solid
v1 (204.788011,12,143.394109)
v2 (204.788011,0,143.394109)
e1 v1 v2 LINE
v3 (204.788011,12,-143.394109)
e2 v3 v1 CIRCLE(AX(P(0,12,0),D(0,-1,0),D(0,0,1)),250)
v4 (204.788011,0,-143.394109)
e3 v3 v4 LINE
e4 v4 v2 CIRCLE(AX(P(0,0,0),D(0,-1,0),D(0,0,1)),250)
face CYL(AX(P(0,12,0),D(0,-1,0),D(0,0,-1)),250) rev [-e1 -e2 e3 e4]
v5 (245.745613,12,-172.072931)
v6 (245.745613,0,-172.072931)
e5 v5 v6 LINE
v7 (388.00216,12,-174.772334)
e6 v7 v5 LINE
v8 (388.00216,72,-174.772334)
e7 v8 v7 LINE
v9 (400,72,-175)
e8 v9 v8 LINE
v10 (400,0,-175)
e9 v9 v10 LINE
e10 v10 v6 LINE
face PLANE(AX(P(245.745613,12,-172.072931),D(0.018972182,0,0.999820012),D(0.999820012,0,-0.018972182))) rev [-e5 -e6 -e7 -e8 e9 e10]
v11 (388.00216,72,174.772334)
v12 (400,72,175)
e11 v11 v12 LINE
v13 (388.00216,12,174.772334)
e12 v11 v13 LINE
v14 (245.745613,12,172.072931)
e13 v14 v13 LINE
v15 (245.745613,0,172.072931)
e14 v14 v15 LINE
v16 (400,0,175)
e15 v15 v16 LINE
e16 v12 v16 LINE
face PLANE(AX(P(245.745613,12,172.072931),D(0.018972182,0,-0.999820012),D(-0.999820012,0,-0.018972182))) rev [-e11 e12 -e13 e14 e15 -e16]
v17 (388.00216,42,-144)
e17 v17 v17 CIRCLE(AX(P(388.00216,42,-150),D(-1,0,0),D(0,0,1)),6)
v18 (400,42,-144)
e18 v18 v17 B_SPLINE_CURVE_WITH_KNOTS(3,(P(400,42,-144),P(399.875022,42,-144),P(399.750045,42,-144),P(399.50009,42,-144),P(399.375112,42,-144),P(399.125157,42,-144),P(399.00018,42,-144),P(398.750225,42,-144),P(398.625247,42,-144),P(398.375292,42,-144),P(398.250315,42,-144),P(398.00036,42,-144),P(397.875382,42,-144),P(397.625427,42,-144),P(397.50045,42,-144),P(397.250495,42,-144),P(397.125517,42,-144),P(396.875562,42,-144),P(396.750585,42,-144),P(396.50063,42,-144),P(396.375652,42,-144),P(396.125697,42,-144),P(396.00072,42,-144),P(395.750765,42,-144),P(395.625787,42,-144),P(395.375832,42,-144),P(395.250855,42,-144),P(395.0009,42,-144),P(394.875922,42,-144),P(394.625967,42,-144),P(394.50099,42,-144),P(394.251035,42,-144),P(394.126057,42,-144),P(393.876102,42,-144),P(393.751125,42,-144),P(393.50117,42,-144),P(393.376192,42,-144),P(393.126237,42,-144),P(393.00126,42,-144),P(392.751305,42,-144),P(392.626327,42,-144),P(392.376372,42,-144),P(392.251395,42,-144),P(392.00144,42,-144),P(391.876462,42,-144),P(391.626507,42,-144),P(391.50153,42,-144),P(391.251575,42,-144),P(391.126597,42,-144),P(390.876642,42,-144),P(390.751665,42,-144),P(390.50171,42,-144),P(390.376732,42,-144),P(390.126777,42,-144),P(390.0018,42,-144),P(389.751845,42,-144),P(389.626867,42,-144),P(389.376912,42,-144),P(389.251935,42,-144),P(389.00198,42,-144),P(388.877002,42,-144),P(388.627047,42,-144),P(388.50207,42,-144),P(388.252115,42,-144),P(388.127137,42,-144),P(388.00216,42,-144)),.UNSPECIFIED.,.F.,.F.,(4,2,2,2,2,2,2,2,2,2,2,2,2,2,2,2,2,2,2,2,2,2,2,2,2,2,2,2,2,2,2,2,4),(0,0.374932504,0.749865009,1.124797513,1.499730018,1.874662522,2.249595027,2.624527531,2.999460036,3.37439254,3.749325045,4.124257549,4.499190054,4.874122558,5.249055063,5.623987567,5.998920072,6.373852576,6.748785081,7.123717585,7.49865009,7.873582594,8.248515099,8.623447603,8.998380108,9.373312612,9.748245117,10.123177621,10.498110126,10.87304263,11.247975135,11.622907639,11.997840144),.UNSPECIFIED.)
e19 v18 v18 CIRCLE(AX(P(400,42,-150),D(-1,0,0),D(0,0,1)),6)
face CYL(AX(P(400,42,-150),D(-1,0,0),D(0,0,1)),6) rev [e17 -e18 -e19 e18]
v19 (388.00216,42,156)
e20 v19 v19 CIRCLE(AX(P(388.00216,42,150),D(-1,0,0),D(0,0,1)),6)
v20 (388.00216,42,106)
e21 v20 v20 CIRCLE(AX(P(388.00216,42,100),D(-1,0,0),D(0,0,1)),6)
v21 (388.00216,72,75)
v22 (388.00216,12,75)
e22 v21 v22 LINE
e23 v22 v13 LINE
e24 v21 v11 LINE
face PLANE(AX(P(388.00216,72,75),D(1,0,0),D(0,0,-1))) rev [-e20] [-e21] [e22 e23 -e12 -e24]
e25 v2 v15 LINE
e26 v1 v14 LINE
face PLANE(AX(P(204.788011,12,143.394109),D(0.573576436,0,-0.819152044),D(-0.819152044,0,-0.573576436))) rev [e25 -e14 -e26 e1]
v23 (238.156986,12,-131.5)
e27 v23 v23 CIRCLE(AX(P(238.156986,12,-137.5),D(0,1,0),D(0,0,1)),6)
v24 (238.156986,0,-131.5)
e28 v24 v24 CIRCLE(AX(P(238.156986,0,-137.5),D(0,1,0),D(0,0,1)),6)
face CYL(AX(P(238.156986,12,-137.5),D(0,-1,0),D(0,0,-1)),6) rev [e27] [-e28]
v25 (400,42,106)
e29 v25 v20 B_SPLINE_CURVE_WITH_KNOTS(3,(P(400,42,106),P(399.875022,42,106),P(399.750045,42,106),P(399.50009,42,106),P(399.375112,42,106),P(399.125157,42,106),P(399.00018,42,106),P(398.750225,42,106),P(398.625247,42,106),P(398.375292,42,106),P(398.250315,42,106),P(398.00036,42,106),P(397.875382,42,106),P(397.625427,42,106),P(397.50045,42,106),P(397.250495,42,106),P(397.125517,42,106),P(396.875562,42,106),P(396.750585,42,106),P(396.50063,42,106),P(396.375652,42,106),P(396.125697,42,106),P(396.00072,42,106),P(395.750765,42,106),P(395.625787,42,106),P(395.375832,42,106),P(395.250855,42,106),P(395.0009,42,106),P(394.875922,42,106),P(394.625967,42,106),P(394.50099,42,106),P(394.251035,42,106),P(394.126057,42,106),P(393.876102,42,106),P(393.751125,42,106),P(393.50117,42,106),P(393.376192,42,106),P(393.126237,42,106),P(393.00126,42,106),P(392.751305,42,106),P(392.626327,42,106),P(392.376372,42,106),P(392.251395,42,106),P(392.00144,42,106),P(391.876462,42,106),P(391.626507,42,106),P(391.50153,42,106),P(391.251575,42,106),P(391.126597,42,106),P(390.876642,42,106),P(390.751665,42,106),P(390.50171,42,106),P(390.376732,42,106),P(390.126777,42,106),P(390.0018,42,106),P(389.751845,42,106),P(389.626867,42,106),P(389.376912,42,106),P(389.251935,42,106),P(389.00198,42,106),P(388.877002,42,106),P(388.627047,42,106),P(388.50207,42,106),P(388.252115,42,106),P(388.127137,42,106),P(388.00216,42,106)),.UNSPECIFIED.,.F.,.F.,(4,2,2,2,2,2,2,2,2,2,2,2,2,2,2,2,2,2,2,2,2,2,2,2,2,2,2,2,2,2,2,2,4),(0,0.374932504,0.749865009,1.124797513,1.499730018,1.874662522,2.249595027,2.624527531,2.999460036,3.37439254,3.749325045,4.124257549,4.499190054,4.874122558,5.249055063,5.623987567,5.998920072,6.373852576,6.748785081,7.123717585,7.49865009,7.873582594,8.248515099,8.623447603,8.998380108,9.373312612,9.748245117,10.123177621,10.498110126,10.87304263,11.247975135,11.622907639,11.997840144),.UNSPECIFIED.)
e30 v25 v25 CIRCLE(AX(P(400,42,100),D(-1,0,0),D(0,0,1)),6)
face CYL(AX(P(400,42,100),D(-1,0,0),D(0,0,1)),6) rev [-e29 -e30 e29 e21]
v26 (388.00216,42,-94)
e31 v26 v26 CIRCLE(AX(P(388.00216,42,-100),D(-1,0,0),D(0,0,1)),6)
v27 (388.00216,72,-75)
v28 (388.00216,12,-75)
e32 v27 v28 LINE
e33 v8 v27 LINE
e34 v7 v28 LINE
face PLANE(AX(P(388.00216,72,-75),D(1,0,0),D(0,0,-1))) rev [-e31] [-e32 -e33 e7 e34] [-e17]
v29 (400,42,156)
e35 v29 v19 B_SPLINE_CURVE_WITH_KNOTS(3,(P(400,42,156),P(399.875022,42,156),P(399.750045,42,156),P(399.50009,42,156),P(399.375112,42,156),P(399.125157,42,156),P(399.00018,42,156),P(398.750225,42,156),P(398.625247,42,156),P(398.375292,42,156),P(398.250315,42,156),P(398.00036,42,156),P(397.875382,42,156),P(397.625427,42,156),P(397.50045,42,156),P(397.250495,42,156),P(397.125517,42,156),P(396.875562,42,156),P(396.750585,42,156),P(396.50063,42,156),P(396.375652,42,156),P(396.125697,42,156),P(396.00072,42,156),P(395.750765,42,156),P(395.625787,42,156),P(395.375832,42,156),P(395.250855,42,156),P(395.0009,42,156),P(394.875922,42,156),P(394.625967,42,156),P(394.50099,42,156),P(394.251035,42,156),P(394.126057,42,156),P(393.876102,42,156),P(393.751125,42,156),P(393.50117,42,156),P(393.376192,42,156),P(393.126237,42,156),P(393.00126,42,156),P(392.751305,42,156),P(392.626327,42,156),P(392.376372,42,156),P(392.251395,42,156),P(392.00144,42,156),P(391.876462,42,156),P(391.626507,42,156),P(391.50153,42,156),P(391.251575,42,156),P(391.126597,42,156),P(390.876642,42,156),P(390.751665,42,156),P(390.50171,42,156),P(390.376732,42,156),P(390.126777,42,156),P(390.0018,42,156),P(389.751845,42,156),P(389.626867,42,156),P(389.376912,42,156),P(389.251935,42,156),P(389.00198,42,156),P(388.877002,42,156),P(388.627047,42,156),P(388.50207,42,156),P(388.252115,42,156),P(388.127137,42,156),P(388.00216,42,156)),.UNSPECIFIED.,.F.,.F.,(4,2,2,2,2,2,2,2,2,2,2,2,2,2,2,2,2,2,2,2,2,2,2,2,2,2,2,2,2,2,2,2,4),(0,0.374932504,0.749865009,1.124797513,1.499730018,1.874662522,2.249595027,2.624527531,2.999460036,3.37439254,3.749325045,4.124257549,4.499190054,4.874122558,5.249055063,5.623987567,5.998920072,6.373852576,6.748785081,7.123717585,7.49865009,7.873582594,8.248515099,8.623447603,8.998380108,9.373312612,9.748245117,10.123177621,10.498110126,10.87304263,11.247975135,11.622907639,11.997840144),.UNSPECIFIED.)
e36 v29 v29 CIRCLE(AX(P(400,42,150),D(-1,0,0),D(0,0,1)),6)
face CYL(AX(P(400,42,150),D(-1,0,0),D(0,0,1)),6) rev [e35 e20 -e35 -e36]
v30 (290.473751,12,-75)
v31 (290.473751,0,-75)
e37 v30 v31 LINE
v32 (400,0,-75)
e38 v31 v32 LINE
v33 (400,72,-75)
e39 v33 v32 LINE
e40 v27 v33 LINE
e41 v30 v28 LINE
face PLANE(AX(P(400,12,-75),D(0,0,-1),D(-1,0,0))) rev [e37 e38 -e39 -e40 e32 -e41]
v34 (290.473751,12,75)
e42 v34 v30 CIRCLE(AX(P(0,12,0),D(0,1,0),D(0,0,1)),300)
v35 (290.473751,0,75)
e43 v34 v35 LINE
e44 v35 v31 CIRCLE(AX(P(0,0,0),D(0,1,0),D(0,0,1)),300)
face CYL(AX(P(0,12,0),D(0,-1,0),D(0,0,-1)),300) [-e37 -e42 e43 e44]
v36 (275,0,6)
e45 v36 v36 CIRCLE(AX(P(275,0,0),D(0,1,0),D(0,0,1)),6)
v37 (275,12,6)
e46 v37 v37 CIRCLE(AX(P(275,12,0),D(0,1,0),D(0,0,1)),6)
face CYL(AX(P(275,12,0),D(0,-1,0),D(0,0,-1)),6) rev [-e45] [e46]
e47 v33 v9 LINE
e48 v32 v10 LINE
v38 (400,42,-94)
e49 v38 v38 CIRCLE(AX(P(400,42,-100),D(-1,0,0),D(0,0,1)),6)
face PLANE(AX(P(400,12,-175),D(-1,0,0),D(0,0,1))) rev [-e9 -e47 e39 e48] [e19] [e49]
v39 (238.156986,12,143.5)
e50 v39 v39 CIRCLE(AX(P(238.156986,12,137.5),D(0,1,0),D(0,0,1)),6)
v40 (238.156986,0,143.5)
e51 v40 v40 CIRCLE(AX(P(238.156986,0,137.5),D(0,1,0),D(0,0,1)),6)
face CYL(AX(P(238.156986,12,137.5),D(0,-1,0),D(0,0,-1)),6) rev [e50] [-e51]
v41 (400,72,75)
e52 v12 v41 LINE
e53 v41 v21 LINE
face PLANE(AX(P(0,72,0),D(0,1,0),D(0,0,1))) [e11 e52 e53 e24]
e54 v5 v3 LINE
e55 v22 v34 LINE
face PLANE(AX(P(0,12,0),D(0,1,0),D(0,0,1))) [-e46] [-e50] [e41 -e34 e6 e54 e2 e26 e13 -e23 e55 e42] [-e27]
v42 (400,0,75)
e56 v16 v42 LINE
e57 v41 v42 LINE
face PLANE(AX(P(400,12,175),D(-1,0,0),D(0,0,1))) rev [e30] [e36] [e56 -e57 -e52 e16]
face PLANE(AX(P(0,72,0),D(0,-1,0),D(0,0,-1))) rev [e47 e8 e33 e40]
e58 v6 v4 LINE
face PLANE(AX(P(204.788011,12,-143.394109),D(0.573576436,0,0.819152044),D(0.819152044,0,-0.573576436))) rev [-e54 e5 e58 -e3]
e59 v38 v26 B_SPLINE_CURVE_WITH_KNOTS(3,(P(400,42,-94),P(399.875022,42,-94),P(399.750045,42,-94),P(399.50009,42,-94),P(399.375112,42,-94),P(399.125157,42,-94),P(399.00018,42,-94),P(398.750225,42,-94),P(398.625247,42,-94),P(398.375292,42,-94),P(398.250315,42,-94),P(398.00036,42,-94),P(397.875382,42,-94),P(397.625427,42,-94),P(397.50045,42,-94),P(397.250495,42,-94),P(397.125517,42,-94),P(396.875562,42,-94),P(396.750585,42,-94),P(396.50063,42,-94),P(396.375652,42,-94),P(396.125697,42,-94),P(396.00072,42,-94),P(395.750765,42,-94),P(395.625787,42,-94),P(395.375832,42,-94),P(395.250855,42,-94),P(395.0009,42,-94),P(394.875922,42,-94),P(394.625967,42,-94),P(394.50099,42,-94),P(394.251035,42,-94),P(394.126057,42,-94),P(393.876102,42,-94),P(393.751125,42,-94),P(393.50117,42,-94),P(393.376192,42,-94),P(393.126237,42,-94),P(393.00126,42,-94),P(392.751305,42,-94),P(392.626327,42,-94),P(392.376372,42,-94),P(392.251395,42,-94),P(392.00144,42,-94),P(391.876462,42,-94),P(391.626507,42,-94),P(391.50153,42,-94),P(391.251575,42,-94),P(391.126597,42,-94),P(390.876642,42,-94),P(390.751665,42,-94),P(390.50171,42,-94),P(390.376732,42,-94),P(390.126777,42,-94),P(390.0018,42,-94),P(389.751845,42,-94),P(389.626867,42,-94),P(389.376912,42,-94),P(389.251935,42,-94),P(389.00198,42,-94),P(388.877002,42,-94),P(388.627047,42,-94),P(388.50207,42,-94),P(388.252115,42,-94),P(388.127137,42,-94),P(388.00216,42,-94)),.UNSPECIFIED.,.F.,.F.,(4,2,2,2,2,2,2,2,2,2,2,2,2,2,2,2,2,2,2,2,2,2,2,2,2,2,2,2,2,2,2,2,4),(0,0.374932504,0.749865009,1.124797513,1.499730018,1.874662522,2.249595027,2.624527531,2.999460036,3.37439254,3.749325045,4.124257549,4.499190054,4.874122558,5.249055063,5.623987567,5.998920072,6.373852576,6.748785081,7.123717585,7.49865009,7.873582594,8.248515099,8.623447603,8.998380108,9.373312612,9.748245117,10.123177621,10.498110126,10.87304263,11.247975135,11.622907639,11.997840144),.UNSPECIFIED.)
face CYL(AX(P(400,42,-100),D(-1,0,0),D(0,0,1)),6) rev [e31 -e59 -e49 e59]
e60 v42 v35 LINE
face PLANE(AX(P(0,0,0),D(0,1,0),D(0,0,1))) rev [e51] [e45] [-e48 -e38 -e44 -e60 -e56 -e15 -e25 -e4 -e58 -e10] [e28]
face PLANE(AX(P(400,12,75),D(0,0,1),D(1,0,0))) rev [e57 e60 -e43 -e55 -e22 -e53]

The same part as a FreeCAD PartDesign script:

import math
import FreeCAD as App
import Part
import Sketcher
Q = App.Units.Quantity


def add_polygon(sketch, points):
    """Adds a closed chain of lines whose ends are joined by coincident constraints."""
    first, n = sketch.GeometryCount, len(points)
    for a, b in zip(points, points[1:] + points[:1]):
        sketch.addGeometry(Part.LineSegment(App.Vector(*a, 0), App.Vector(*b, 0)), False)
    for i in range(n):
        sketch.addConstraint(Sketcher.Constraint("Coincident", first + i, 2, first + (i + 1) % n, 1))

doc = App.newDocument("Part")
body = doc.addObject("PartDesign::Body", "Body")

# Sketch on XZ plane
sketch1 = body.newObject("Sketcher::SketchObject", "Sketch")
sketch1.AttachmentSupport = (doc.getObject("XZ_Plane"), [""])
sketch1.MapMode = "FlatFace"
sketch1.addGeometry([
    Part.LineSegment(App.Vector(400, -75, 0), App.Vector(400, -175, 0)),  # 0
    Part.LineSegment(App.Vector(400, -175, 0), App.Vector(246, -172, 0)),  # 1
    Part.LineSegment(App.Vector(246, -172, 0), App.Vector(205, -143, 0)),  # 2
    Part.ArcOfCircle(Part.Circle(App.Vector(0, 0, 0), App.Vector(0, 0, 1), 250), math.radians(-35), math.radians(35)),  # 3
    Part.LineSegment(App.Vector(205, 143, 0), App.Vector(246, 172, 0)),  # 4
    Part.LineSegment(App.Vector(246, 172, 0), App.Vector(400, 175, 0)),  # 5
    Part.LineSegment(App.Vector(400, 175, 0), App.Vector(400, 75, 0)),  # 6
    Part.LineSegment(App.Vector(400, 75, 0), App.Vector(290, 75, 0)),  # 7
    Part.ArcOfCircle(Part.Circle(App.Vector(0, 0, 0), App.Vector(0, 0, 1), 300), math.radians(-14), math.radians(14)),  # 8
    Part.LineSegment(App.Vector(290, -75, 0), App.Vector(400, -75, 0)),  # 9
    Part.Circle(App.Vector(238, 138, 0), App.Vector(0, 0, 1), 6),  # 10
    Part.Circle(App.Vector(275, 0, 0), App.Vector(0, 0, 1), 6),  # 11
    Part.Circle(App.Vector(238, -138, 0), App.Vector(0, 0, 1), 6),  # 12
], False)
sketch1.addConstraint([
    Sketcher.Constraint("Coincident", 0, 2, 1, 1),
    Sketcher.Constraint("Coincident", 1, 2, 2, 1),
    Sketcher.Constraint("Coincident", 2, 2, 3, 1),
    Sketcher.Constraint("Coincident", 3, 2, 4, 1),
    Sketcher.Constraint("Coincident", 4, 2, 5, 1),
    Sketcher.Constraint("Coincident", 5, 2, 6, 1),
    Sketcher.Constraint("Coincident", 6, 2, 7, 1),
    Sketcher.Constraint("Coincident", 7, 2, 8, 2),
    Sketcher.Constraint("Coincident", 8, 1, 9, 1),
    Sketcher.Constraint("Coincident", 9, 2, 0, 1),
    Sketcher.Constraint("Vertical", 0),
    Sketcher.Constraint("Vertical", 6),
    Sketcher.Constraint("Horizontal", 7),
    Sketcher.Constraint("Horizontal", 9),
    Sketcher.Constraint("Coincident", 3, 3, -1, 1),
    Sketcher.Constraint("Coincident", 8, 3, -1, 1),
    Sketcher.Constraint("Equal", 10, 11),
    Sketcher.Constraint("Equal", 11, 12),
    Sketcher.Constraint("Symmetric", 10, 3, 12, 3, -1),
    Sketcher.Constraint("Symmetric", 1, 2, 4, 2, -1),
    Sketcher.Constraint("Symmetric", 0, 2, 5, 2, -1),
    Sketcher.Constraint("PointOnObject", 11, 3, -1),
    Sketcher.Constraint("Vertical", 2, 2, 3, 2),
    Sketcher.Constraint("Vertical", 7, 2, 8, 1),
    Sketcher.Constraint("Diameter", 10, 12.0),
    Sketcher.Constraint("Radius", 3, 250.0),
    Sketcher.Constraint("Radius", 8, 300.0),
    Sketcher.Constraint("DistanceY", 0, 2, 0, 1, 100.0),
    Sketcher.Constraint("Angle", 2, Q("145 deg")),
    Sketcher.Constraint("Distance", 2, 50.0),
    Sketcher.Constraint("DistanceX", -1, 1, 11, 3, 275.0),
    Sketcher.Constraint("DistanceX", -1, 1, 0, 2, 400.0),
    Sketcher.Constraint("DistanceY", 0, 2, -1, 1, 175.0),
    Sketcher.Constraint("DistanceY", 12, 3, 10, 3, 275.0),
    Sketcher.Constraint("DistanceY", 1, 2, -1, 1, 172.072931),
    Sketcher.Constraint("DistanceX", -1, 1, 10, 3, 238.156986),
])
pad1 = body.newObject("PartDesign::Pad", "Pad")
pad1.Profile = sketch1
pad1.Length = 12
pad1.Reversed = True

# Sketch on XZ plane
sketch2 = body.newObject("Sketcher::SketchObject", "Sketch001")
sketch2.AttachmentSupport = (doc.getObject("XZ_Plane"), [""])
sketch2.MapMode = "FlatFace"
sketch2.AttachmentOffset = App.Placement(App.Vector(0, 0, -12), App.Rotation())
add_polygon(sketch2, [(400, -75), (400, -175), (388.00216, -174.772334), (388.00216, -75)])  # lines 0-3
add_polygon(sketch2, [(400, 175), (400, 75), (388.00216, 75), (388.00216, 174.772334)])  # lines 4-7
sketch2.addConstraint([
    Sketcher.Constraint("Vertical", 0),
    Sketcher.Constraint("Vertical", 2),
    Sketcher.Constraint("Horizontal", 3),
    Sketcher.Constraint("Vertical", 4),
    Sketcher.Constraint("Horizontal", 5),
    Sketcher.Constraint("Vertical", 6),
    Sketcher.Constraint("Symmetric", 3, 2, 4, 2, -1),
    Sketcher.Constraint("Symmetric", 1, 2, 6, 2, -1),
    Sketcher.Constraint("Equal", 0, 4),
    Sketcher.Constraint("DistanceY", 0, 2, 0, 1, 100.0),
    Sketcher.Constraint("Distance", 1, 12.0),
    Sketcher.Constraint("DistanceX", -1, 1, 0, 2, 400.0),
    Sketcher.Constraint("DistanceY", 0, 2, -1, 1, 175.0),
    Sketcher.Constraint("DistanceX", 3, 1, 3, 2, 11.99784),
])
pad2 = body.newObject("PartDesign::Pad", "Pad001")
pad2.Profile = sketch2
pad2.Length = 60
pad2.Reversed = True

# Sketch on YZ plane
sketch3 = body.newObject("Sketcher::SketchObject", "Sketch002")
sketch3.AttachmentSupport = (doc.getObject("YZ_Plane"), [""])
sketch3.MapMode = "FlatFace"
sketch3.AttachmentOffset = App.Placement(App.Vector(0, 0, 388.00216), App.Rotation())
sketch3.addGeometry([
    Part.Circle(App.Vector(42, -150, 0), App.Vector(0, 0, 1), 6),
    Part.Circle(App.Vector(42, -100, 0), App.Vector(0, 0, 1), 6),
    Part.Circle(App.Vector(42, 100, 0), App.Vector(0, 0, 1), 6),
    Part.Circle(App.Vector(42, 150, 0), App.Vector(0, 0, 1), 6),
], False)
sketch3.addConstraint([
    Sketcher.Constraint("Equal", 0, 1),
    Sketcher.Constraint("Equal", 1, 2),
    Sketcher.Constraint("Equal", 2, 3),
    Sketcher.Constraint("Symmetric", 1, 3, 2, 3, -1),
    Sketcher.Constraint("Symmetric", 0, 3, 3, 3, -1),
    Sketcher.Constraint("Vertical", 0, 3, 1, 3),
    Sketcher.Constraint("Diameter", 0, 12.0),
    Sketcher.Constraint("DistanceX", -1, 1, 0, 3, 42.0),
    Sketcher.Constraint("DistanceY", 0, 3, -1, 1, 150.0),
    Sketcher.Constraint("DistanceY", 1, 3, -1, 1, 100.0),
])
pocket1 = body.newObject("PartDesign::Pocket", "Pocket")
pocket1.Profile = sketch3
pocket1.Type = "ThroughAll"
pocket1.Reversed = True

doc.recompute()
